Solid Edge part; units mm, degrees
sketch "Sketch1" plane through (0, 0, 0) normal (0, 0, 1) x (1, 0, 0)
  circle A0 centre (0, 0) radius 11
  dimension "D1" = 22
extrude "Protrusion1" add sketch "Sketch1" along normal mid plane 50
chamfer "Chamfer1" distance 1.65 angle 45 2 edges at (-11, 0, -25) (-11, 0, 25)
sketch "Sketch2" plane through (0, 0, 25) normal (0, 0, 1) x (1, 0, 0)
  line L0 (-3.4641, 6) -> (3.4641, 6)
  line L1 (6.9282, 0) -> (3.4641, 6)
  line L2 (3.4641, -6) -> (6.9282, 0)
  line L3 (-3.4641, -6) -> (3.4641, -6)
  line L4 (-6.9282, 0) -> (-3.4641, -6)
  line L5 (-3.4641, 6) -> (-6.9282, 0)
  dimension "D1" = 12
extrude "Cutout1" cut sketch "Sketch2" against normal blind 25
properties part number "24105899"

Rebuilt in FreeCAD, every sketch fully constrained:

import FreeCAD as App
import Part
import Sketcher

V = App.Vector
Q = App.Units.Quantity


def edges_at(feature, points):
    """Names of the edges that pass closest to the given points."""
    edges = feature.Shape.Edges
    near = lambda p: min(range(len(edges)), key=lambda i: edges[i].distToShape(Part.Vertex(*p))[0])
    return sorted({f"Edge{near(p) + 1}" for p in points})


def add_polygon(sketch, points):
    """Adds a closed chain of lines whose ends are joined by coincident constraints."""
    first, n = sketch.GeometryCount, len(points)
    for a, b in zip(points, points[1:] + points[:1]):
        sketch.addGeometry(Part.LineSegment(App.Vector(*a, 0), App.Vector(*b, 0)), False)
    for i in range(n):
        sketch.addConstraint(Sketcher.Constraint("Coincident", first + i, 2, first + (i + 1) % n, 1))

doc = App.newDocument("Part")
body = doc.addObject("PartDesign::Body", "Body")

# Sketch on XY plane
sketch1 = body.newObject("Sketcher::SketchObject", "Sketch")
sketch1.AttachmentSupport = (doc.getObject("XY_Plane"), [""])
sketch1.MapMode = "FlatFace"
sketch1.addGeometry(Part.Circle(V(0, 0, 0), V(0, 0, 1), 11), False)
sketch1.addConstraint(Sketcher.Constraint("Coincident", 0, 3, -1, 1))
sketch1.addConstraint(Sketcher.Constraint("Diameter", 0, 22.0))
pad1 = body.newObject("PartDesign::Pad", "Pad")
pad1.Profile = sketch1
pad1.Length = 50
pad1.Midplane = True
doc.recompute()

chamfer = body.newObject("PartDesign::Chamfer", "Chamfer")
chamfer.Base = (pad1, edges_at(pad1, [(-11, 0, -25), (-11, 0, 25)]))
chamfer.Size = 1.65

# Sketch on XY plane
sketch2 = body.newObject("Sketcher::SketchObject", "Sketch001")
sketch2.AttachmentSupport = (doc.getObject("XY_Plane"), [""])
sketch2.MapMode = "FlatFace"
sketch2.AttachmentOffset = App.Placement(V(0, 0, 25), App.Rotation())
add_polygon(sketch2, [(3.4641, 6), (-3.4641, 6), (-6.9282, 0), (-3.4641, -6), (3.4641, -6), (6.9282, 0)])  # lines 0-5
sketch2.addConstraint(Sketcher.Constraint("Horizontal", 0))
sketch2.addConstraint(Sketcher.Constraint("Horizontal", 3))
sketch2.addConstraint(Sketcher.Constraint("Symmetric", 0, 2, 3, 2, -1, 1))
sketch2.addConstraint(Sketcher.Constraint("Symmetric", 1, 2, 4, 2, -1, 1))
sketch2.addConstraint(Sketcher.Constraint("PointOnObject", 1, 2, -1))
sketch2.addConstraint(Sketcher.Constraint("Parallel", 2, 5))
sketch2.addConstraint(Sketcher.Constraint("Vertical", 0, 2, 2, 2))
sketch2.addConstraint(Sketcher.Constraint("Angle", 1, Q("-120 deg")))
sketch2.addConstraint(Sketcher.Constraint("DistanceY", -1, 1, 0, 2, 6.0))
sketch2.addConstraint(Sketcher.Constraint("DistanceX", 0, 2, 0, 1, 6.9282))
pocket1 = body.newObject("PartDesign::Pocket", "Pocket")
pocket1.Profile = sketch2
pocket1.Length = 25

doc.recompute()
